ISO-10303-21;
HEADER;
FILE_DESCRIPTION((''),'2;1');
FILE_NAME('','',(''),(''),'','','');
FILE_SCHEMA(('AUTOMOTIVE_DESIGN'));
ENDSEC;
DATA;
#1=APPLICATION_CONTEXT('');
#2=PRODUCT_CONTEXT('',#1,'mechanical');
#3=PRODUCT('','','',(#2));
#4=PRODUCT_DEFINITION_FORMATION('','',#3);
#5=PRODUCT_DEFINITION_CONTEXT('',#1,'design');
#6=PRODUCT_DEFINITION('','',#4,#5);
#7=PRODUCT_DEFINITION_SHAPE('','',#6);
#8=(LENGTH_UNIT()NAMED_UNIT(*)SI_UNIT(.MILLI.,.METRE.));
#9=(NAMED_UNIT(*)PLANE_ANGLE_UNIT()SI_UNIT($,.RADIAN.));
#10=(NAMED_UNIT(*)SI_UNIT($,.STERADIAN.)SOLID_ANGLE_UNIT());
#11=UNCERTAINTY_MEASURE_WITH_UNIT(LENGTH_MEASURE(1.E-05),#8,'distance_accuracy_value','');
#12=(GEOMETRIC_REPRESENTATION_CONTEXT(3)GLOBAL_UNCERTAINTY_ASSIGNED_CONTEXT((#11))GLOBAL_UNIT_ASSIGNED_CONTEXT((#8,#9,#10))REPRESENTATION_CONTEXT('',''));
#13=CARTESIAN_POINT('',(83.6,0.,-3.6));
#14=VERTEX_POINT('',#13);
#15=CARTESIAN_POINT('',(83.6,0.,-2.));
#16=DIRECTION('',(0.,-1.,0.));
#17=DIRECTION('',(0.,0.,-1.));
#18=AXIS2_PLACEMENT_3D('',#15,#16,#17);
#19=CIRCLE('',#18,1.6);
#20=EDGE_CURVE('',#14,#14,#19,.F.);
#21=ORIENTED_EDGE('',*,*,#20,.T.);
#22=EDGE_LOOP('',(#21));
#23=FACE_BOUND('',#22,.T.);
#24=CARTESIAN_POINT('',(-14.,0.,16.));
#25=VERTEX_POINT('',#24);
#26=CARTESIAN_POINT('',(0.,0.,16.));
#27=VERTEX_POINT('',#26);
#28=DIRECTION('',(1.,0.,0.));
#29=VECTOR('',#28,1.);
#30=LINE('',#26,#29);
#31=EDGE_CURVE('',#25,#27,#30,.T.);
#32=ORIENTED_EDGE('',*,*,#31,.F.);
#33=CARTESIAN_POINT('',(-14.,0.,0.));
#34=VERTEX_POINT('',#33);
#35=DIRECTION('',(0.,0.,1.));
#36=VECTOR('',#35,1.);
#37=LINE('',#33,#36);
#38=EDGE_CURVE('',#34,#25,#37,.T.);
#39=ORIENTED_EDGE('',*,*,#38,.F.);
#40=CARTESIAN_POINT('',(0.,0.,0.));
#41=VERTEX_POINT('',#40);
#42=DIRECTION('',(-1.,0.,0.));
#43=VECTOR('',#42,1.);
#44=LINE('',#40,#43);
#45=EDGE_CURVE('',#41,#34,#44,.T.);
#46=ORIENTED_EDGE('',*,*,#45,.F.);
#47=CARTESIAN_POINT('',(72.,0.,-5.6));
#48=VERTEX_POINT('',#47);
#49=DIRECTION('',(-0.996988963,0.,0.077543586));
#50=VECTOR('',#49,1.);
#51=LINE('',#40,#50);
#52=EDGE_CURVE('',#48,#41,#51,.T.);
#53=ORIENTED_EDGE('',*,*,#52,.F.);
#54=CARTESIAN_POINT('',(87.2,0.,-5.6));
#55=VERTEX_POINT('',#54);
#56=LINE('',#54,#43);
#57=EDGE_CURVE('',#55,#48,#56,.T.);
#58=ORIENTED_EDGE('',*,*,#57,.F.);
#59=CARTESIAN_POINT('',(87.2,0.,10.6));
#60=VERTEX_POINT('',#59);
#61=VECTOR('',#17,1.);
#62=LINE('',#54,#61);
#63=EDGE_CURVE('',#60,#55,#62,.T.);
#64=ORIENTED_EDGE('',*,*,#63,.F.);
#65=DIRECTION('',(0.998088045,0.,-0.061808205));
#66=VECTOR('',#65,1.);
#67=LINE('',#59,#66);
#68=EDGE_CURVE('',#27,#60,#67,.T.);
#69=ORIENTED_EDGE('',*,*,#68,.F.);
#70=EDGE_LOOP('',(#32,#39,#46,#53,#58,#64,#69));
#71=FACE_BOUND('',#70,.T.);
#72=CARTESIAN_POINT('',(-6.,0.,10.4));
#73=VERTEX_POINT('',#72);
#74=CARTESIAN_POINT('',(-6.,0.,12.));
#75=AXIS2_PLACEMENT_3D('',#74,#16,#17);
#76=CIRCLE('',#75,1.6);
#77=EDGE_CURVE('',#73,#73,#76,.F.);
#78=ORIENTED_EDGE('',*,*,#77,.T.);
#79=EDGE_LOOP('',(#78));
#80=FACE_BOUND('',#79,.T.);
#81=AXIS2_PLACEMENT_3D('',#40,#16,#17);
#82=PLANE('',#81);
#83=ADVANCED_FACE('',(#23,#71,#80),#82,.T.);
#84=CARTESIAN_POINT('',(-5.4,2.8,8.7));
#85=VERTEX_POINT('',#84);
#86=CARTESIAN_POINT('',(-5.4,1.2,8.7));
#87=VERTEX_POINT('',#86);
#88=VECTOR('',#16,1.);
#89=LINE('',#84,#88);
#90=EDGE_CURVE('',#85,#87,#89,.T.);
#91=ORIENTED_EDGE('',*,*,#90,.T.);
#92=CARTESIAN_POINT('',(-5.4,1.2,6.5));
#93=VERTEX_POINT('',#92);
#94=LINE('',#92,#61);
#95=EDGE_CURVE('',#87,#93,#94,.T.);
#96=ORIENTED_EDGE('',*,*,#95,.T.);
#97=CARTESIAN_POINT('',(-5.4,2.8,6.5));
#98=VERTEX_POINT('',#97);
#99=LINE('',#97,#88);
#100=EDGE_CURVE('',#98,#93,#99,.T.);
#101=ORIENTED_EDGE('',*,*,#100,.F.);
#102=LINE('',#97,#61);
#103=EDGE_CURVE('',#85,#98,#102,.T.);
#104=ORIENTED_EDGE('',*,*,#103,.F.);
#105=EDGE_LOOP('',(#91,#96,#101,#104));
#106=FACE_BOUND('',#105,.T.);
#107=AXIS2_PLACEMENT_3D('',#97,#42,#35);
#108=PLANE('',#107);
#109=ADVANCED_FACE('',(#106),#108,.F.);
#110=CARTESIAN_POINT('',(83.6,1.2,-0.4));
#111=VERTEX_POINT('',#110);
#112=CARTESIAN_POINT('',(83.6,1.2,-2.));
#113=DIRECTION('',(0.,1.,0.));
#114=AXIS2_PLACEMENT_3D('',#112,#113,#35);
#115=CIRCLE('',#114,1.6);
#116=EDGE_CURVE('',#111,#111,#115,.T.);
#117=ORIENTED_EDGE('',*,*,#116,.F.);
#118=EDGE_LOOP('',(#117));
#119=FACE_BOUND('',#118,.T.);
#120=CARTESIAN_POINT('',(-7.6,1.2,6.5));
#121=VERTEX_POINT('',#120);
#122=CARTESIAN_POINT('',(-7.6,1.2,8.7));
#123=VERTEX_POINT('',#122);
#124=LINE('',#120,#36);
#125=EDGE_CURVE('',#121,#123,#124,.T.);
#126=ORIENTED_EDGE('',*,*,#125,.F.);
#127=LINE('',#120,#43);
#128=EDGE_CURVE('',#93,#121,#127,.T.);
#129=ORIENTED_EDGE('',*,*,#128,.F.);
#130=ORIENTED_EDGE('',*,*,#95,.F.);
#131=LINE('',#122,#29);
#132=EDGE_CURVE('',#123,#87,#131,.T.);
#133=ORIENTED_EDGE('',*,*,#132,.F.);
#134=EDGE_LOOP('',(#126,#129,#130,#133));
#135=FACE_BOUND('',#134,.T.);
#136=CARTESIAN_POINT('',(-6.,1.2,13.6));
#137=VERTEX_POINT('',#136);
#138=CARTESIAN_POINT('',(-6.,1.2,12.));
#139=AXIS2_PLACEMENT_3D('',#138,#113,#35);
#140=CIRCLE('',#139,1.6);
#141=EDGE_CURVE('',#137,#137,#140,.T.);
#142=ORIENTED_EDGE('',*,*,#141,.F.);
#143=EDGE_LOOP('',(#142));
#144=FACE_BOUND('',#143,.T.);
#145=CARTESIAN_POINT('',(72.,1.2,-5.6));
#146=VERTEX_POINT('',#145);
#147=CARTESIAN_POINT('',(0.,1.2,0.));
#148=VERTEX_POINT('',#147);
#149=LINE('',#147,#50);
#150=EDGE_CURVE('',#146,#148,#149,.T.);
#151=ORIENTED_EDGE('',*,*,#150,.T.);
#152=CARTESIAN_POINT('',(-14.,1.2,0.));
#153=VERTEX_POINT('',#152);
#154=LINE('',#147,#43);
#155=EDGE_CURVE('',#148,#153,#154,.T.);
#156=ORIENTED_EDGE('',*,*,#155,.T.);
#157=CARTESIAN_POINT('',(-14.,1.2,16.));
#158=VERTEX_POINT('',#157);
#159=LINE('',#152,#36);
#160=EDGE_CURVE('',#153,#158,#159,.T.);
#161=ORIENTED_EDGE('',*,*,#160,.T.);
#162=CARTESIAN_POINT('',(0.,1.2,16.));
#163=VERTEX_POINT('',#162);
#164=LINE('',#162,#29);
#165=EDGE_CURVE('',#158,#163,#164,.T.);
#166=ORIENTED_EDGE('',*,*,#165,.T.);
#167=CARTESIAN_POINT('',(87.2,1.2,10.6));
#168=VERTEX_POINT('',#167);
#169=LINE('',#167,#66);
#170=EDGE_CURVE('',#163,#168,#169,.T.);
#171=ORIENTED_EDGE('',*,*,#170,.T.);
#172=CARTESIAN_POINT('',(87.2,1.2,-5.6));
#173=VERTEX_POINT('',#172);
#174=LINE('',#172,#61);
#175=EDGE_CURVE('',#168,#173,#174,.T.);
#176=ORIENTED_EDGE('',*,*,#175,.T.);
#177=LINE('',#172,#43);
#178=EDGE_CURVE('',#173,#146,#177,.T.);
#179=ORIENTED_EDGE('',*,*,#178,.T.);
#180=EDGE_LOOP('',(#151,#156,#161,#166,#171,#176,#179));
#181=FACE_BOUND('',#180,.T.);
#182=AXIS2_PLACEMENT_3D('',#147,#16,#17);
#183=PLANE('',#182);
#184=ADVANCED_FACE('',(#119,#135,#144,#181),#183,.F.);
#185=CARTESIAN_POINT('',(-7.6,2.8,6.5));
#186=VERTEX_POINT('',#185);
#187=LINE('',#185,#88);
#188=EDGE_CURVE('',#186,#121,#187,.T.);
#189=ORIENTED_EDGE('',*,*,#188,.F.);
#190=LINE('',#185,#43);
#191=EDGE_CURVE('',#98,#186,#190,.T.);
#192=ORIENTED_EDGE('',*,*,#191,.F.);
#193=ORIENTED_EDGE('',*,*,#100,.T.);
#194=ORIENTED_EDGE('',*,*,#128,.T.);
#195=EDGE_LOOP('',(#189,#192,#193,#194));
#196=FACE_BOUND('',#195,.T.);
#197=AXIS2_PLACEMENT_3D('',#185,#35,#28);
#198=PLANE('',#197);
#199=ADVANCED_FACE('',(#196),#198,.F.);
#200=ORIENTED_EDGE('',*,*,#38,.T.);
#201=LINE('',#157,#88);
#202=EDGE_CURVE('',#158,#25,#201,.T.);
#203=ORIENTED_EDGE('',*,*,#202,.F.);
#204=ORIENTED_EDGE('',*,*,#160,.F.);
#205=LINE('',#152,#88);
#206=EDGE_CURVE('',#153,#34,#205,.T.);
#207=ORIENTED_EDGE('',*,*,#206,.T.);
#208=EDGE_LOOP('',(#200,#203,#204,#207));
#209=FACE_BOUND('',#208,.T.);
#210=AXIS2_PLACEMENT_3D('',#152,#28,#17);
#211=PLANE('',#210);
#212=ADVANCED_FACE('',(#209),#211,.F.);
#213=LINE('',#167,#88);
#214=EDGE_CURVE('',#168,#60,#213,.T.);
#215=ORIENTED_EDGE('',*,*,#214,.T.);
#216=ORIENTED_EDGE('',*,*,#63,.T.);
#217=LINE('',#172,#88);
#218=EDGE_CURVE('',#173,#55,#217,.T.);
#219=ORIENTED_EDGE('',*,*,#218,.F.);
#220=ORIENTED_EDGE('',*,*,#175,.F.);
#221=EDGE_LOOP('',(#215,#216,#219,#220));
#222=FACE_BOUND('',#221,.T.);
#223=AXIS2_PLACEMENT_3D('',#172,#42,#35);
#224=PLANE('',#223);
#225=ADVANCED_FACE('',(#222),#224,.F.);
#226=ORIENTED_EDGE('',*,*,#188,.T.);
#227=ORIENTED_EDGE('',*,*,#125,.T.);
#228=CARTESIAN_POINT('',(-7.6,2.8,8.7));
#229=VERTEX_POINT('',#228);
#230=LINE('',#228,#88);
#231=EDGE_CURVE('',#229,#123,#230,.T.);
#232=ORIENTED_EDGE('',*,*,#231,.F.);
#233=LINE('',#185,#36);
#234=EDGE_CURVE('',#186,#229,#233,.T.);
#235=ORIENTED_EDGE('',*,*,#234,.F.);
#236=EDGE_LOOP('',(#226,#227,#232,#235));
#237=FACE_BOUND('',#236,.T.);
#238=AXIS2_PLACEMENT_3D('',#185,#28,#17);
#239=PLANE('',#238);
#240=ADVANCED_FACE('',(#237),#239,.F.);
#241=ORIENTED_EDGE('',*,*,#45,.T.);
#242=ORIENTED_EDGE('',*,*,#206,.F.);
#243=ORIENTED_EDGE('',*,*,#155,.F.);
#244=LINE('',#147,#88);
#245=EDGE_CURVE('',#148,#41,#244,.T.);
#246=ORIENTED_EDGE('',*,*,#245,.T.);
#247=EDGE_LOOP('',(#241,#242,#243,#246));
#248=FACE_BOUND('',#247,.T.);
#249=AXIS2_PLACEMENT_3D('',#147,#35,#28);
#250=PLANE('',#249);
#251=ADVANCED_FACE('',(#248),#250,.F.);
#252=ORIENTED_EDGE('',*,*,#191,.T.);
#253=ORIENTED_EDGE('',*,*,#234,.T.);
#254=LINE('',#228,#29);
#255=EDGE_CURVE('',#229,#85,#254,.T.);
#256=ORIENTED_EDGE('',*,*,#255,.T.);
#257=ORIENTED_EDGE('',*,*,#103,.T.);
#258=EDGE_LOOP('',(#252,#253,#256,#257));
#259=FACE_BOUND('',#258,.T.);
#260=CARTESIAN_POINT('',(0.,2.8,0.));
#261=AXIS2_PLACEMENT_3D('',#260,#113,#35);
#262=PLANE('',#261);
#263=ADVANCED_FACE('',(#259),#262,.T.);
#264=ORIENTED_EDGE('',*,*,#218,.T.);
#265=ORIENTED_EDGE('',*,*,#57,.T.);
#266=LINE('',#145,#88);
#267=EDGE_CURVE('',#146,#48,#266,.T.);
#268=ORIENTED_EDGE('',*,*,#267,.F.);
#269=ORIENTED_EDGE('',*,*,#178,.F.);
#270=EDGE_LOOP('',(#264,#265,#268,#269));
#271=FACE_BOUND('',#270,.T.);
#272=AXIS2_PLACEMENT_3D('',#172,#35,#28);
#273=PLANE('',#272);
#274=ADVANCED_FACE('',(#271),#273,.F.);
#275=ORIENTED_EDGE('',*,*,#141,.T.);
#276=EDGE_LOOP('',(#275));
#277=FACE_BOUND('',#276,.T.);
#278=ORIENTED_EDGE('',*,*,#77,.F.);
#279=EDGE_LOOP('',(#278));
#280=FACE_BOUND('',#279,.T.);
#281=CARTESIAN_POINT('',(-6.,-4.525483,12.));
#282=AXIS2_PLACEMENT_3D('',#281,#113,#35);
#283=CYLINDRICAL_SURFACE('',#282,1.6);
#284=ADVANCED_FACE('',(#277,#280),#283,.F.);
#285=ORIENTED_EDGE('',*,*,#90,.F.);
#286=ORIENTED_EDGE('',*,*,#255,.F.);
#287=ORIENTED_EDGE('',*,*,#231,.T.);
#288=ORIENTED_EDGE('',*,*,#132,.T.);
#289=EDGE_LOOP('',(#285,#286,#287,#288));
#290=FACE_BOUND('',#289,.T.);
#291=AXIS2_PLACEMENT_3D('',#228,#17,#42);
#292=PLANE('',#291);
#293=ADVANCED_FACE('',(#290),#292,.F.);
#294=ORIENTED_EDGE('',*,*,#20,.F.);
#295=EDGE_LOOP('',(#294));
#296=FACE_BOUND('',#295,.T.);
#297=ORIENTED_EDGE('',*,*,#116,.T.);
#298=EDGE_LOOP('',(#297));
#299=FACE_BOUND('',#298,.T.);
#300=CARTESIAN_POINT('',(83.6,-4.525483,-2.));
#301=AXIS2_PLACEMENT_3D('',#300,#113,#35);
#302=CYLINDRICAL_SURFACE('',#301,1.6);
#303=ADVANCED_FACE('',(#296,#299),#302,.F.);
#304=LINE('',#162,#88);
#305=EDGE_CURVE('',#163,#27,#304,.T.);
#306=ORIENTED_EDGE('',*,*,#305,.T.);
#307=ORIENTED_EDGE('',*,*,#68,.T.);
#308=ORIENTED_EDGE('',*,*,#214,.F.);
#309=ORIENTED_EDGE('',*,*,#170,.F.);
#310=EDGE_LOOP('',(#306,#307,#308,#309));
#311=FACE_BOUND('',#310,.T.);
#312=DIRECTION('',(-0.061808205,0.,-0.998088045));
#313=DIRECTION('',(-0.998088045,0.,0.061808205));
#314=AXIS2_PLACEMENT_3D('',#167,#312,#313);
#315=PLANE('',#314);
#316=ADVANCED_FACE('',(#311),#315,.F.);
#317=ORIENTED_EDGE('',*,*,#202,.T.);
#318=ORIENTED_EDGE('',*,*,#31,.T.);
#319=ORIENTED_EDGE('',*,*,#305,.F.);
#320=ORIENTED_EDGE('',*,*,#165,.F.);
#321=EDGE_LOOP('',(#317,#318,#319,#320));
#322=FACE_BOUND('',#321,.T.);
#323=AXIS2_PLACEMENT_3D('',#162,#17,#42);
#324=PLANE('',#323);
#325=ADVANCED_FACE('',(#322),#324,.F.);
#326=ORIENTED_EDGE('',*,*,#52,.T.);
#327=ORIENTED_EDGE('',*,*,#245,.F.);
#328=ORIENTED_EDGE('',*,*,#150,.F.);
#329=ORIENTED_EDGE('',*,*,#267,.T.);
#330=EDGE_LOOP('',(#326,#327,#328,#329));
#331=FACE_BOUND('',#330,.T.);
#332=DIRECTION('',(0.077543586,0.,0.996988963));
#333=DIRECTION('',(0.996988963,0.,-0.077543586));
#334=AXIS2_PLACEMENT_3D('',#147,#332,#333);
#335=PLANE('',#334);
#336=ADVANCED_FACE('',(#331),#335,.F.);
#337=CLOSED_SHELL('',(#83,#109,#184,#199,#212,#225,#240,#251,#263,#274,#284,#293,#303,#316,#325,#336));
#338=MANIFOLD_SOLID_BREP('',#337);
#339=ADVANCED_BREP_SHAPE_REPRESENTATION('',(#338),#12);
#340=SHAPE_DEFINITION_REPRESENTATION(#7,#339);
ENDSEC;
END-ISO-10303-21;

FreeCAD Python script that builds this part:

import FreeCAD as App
import Part
import Sketcher
from FreeCAD import Vector
Q = App.Units.Quantity


def add_polygon(sketch, points):
    """Adds a closed chain of lines whose ends are joined by coincident constraints."""
    first, n = sketch.GeometryCount, len(points)
    for a, b in zip(points, points[1:] + points[:1]):
        sketch.addGeometry(Part.LineSegment(App.Vector(*a, 0), App.Vector(*b, 0)), False)
    for i in range(n):
        sketch.addConstraint(Sketcher.Constraint("Coincident", first + i, 2, first + (i + 1) % n, 1))

doc = App.newDocument("Part")
params = doc.addObject("Spreadsheet::Sheet", "Params")
for row, (alias, value) in enumerate([
    ("sketch1_width", "14 mm"),
    ("sketch1_height", "16 mm"),
    ("sketch1_width2", "15.2 mm"),
    ("sketch1_height2", "16.2 mm"),
    ("pad1_length", "1.2 mm"),
    ("sketch2_diameter", "3.2 mm"),
    ("pocket1_length", "1.2 mm"),
    ("sketch3_width", "2.2 mm"),
    ("pad2_length", "1.6 mm"),
], start=1):
    params.set(f"A{row}", alias)
    params.set(f"B{row}", "=" + value)
    params.setAlias(f"B{row}", alias)

body = doc.addObject("PartDesign::Body", "Body")

sketch1 = doc.addObject("Sketcher::SketchObject", "Sketch")
body.addObject(sketch1)
sketch1.AttachmentSupport = (doc.XZ_Plane, [""])
sketch1.MapMode = "FlatFace"
add_polygon(sketch1, [(87, -6), (72, -6), (0, 0), (-14, 0), (-14, 16), (0, 16), (87, 11)])
sketch1.addConstraint(Sketcher.Constraint("Horizontal", 0))
sketch1.addConstraint(Sketcher.Constraint("Horizontal", 2))
sketch1.addConstraint(Sketcher.Constraint("Vertical", 3))
sketch1.addConstraint(Sketcher.Constraint("Horizontal", 4))
sketch1.addConstraint(Sketcher.Constraint("Vertical", 6))
sketch1.addConstraint(Sketcher.Constraint("Coincident", 1, 2, -1, 1))
sketch1.addConstraint(Sketcher.Constraint("PointOnObject", 4, 2, -2))
sketch1.addConstraint(Sketcher.Constraint("DistanceX", 2, 2, 2, 1, Q("14 mm")))
sketch1.addConstraint(Sketcher.Constraint("DistanceY", 3, 1, 3, 2, Q("16 mm")))
sketch1.addConstraint(Sketcher.Constraint("DistanceX", 0, 2, 0, 1, Q("15.2 mm")))
sketch1.addConstraint(Sketcher.Constraint("DistanceY", 6, 2, 6, 1, Q("16.2 mm")))
sketch1.addConstraint(Sketcher.Constraint("DistanceX", -1, 1, 0, 2, Q("72 mm")))
sketch1.addConstraint(Sketcher.Constraint("DistanceY", 0, 2, -1, 1, Q("5.6 mm")))
sketch1.setExpression("Constraints[14]", "Params.sketch1_width")
sketch1.setExpression("Constraints[15]", "Params.sketch1_height")
sketch1.setExpression("Constraints[16]", "Params.sketch1_width2")
sketch1.setExpression("Constraints[17]", "Params.sketch1_height2")
pad1 = doc.addObject("PartDesign::Pad", "Pad")
body.addObject(pad1)
pad1.Profile = sketch1
pad1.setExpression("Length", "Params.pad1_length")
pad1.Reversed = True

sketch2 = doc.addObject("Sketcher::SketchObject", "Sketch001")
body.addObject(sketch2)
sketch2.AttachmentSupport = (doc.XZ_Plane, [""])
sketch2.MapMode = "FlatFace"
sketch2.AttachmentOffset = App.Placement(Vector(0, 0, -1.2), App.Rotation())
sketch2.addGeometry(Part.Circle(Vector(-6, 12, 0), Vector(0, 0, 1), 1.6), False)
sketch2.addGeometry(Part.Circle(Vector(83.6, -2, 0), Vector(0, 0, 1), 1.6), False)
sketch2.addConstraint(Sketcher.Constraint("Equal", 0, 1))
sketch2.addConstraint(Sketcher.Constraint("Diameter", 0, Q("3.2 mm")))
sketch2.addConstraint(Sketcher.Constraint("DistanceX", 0, 3, -1, 1, Q("6 mm")))
sketch2.addConstraint(Sketcher.Constraint("DistanceY", -1, 1, 0, 3, Q("12 mm")))
sketch2.addConstraint(Sketcher.Constraint("DistanceY", 1, 3, -1, 1, Q("2 mm")))
sketch2.addConstraint(Sketcher.Constraint("DistanceX", -1, 1, 1, 3, Q("83.6 mm")))
sketch2.setExpression("Constraints[1]", "Params.sketch2_diameter")
pocket1 = doc.addObject("PartDesign::Pocket", "Pocket")
body.addObject(pocket1)
pocket1.Profile = sketch2
pocket1.setExpression("Length", "Params.pocket1_length")
pocket1.Reversed = True

sketch3 = doc.addObject("Sketcher::SketchObject", "Sketch002")
body.addObject(sketch3)
sketch3.AttachmentSupport = (doc.XZ_Plane, [""])
sketch3.MapMode = "FlatFace"
sketch3.AttachmentOffset = App.Placement(Vector(0, 0, -1.2), App.Rotation())
add_polygon(sketch3, [(-7.6, 6.5), (-7.6, 8.7), (-5.4, 8.7), (-5.4, 6.5)])
sketch3.addConstraint(Sketcher.Constraint("Vertical", 0))
sketch3.addConstraint(Sketcher.Constraint("Horizontal", 1))
sketch3.addConstraint(Sketcher.Constraint("Vertical", 2))
sketch3.addConstraint(Sketcher.Constraint("Horizontal", 3))
sketch3.addConstraint(Sketcher.Constraint("Equal", 3, 0))
sketch3.addConstraint(Sketcher.Constraint("DistanceX", 1, 1, 1, 2, Q("2.2 mm")))
sketch3.addConstraint(Sketcher.Constraint("DistanceX", 0, 2, -1, 1, Q("7.6 mm")))
sketch3.addConstraint(Sketcher.Constraint("DistanceY", -1, 1, 0, 2, Q("8.7 mm")))
sketch3.setExpression("Constraints[9]", "Params.sketch3_width")
pad2 = doc.addObject("PartDesign::Pad", "Pad001")
body.addObject(pad2)
pad2.Profile = sketch3
pad2.setExpression("Length", "Params.pad2_length")
pad2.Reversed = True

doc.recompute()
